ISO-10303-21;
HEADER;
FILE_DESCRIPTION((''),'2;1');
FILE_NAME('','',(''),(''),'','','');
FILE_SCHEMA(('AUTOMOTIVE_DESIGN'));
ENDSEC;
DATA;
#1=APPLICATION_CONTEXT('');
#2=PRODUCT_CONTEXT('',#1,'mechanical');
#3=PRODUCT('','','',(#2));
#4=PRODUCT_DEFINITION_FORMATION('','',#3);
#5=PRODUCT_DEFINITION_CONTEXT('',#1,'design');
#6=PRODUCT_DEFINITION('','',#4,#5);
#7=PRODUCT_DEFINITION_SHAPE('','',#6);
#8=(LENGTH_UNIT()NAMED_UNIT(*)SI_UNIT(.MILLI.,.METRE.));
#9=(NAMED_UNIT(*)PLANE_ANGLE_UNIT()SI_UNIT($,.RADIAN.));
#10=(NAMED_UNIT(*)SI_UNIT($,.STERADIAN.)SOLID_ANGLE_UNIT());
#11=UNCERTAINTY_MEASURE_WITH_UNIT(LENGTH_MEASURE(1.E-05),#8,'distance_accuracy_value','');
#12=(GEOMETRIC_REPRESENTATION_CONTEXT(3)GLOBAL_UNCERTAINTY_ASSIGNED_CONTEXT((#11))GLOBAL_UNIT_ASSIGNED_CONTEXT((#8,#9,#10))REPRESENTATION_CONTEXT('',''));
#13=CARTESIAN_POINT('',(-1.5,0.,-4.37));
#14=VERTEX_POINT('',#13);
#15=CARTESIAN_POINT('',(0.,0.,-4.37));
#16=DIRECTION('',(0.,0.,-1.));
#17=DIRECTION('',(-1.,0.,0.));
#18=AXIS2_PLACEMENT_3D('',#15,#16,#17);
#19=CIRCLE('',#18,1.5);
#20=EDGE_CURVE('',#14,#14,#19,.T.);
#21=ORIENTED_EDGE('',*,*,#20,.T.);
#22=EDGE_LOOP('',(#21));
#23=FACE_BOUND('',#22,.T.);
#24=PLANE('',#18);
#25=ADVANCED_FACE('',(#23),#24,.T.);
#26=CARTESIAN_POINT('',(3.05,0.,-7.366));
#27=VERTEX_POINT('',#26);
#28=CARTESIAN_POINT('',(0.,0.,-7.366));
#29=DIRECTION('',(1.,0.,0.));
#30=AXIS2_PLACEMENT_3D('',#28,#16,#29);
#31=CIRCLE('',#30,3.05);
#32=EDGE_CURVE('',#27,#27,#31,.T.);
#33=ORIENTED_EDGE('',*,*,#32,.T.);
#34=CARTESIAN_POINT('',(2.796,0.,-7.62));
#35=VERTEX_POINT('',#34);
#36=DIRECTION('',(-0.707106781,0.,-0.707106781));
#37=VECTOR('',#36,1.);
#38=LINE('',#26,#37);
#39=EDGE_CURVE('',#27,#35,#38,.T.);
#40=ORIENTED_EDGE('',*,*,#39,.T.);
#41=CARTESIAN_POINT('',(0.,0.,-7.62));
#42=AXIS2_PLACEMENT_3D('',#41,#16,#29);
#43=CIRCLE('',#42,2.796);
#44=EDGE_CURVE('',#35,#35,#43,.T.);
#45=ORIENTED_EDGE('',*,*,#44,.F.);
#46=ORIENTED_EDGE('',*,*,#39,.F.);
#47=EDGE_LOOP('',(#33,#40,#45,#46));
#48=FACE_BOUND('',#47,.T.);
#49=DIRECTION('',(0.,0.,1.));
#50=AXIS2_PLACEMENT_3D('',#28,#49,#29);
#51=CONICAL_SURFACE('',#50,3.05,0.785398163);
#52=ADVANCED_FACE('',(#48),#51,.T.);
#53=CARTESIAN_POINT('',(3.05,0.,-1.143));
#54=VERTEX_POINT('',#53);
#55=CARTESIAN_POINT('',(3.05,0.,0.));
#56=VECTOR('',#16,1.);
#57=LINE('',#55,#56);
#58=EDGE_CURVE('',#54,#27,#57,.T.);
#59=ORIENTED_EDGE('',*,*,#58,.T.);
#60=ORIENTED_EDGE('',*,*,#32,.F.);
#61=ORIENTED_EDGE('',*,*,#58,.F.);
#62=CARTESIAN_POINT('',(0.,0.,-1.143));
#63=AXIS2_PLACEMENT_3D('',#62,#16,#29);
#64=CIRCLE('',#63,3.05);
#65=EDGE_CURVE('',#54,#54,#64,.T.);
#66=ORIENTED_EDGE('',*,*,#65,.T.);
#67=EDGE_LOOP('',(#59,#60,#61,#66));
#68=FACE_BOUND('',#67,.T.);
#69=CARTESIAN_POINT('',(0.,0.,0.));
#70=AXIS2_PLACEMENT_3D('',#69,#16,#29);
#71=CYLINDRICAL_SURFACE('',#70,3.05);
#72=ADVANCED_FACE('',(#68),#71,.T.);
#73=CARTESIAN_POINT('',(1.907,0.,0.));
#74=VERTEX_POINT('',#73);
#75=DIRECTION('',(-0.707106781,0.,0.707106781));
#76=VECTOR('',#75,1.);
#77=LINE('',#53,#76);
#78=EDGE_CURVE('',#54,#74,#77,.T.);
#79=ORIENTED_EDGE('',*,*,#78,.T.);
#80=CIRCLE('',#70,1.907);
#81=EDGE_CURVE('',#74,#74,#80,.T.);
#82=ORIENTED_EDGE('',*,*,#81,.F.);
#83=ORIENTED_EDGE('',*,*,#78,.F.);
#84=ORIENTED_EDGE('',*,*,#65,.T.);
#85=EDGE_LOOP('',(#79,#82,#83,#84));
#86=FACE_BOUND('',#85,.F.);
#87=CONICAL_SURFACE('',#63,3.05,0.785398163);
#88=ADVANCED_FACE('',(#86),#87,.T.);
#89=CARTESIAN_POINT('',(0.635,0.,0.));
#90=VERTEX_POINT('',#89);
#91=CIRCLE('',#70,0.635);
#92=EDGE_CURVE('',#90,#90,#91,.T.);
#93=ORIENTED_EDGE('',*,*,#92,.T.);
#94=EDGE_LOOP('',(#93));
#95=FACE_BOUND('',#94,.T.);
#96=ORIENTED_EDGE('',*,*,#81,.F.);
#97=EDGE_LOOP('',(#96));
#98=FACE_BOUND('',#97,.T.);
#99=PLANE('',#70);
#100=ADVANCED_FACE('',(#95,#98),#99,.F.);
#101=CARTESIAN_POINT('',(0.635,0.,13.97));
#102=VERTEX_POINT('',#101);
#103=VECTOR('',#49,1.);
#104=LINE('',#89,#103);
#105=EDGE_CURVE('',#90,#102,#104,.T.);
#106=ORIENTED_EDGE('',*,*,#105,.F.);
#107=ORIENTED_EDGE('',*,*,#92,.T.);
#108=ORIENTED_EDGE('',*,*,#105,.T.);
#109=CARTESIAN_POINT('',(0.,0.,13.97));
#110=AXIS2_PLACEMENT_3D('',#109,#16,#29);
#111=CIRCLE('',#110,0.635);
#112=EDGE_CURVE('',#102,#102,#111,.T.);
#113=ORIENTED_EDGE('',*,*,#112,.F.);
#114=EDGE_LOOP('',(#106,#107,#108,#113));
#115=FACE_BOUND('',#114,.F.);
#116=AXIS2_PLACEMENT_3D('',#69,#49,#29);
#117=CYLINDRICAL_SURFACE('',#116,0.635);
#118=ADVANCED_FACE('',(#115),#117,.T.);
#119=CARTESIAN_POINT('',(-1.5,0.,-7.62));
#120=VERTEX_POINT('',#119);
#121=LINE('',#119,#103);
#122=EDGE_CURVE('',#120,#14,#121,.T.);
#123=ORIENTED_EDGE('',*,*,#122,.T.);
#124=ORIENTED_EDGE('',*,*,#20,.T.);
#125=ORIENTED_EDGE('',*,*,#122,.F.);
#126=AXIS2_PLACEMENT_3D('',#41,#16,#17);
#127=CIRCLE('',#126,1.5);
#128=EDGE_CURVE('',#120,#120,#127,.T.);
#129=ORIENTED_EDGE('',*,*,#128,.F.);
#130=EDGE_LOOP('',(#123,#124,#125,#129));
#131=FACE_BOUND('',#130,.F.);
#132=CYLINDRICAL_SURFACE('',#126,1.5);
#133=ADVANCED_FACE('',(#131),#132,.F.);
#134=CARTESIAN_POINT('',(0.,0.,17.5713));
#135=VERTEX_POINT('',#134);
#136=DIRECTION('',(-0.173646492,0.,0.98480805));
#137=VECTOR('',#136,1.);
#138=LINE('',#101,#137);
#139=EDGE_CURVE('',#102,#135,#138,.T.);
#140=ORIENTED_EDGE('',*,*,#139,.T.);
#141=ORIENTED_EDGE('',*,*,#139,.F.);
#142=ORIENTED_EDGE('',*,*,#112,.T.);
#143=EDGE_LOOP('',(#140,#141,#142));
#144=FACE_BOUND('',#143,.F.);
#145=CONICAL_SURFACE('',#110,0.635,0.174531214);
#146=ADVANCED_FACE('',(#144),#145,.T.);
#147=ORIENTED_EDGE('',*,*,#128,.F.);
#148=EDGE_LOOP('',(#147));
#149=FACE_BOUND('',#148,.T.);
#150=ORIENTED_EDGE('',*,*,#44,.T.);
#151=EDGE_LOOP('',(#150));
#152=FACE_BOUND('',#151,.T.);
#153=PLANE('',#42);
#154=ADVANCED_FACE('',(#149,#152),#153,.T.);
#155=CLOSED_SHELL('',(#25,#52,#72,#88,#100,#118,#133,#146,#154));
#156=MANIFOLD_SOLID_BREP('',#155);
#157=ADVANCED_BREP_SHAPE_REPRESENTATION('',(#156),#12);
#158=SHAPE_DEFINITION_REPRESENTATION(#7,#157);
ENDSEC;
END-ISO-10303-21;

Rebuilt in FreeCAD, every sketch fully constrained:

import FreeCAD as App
import Part
import Sketcher
from FreeCAD import Vector
Q = App.Units.Quantity


def edges_at(feature, points):
    """Names of the edges that pass closest to the given points."""
    edges = feature.Shape.Edges
    near = lambda p: min(range(len(edges)), key=lambda i: edges[i].distToShape(Part.Vertex(*p))[0])
    return sorted({f"Edge{near(p) + 1}" for p in points})


def add_polygon(sketch, points):
    """Adds a closed chain of lines whose ends are joined by coincident constraints."""
    first, n = sketch.GeometryCount, len(points)
    for a, b in zip(points, points[1:] + points[:1]):
        sketch.addGeometry(Part.LineSegment(App.Vector(*a, 0), App.Vector(*b, 0)), False)
    for i in range(n):
        sketch.addConstraint(Sketcher.Constraint("Coincident", first + i, 2, first + (i + 1) % n, 1))

doc = App.newDocument("Part")
body = doc.addObject("PartDesign::Body", "Body")

# Sketch on XZ plane
sketch1 = body.newObject("Sketcher::SketchObject", "Sketch")
sketch1.AttachmentSupport = (doc.getObject("XZ_Plane"), [""])
sketch1.MapMode = "FlatFace"
add_polygon(sketch1, [(0, -7.6), (0, 17.6), (0.6, 14), (0.6, 0), (3, 0), (3, -7.6)])  # lines 0-5
sketch1.addConstraint([
    Sketcher.Constraint("Vertical", 0),
    Sketcher.Constraint("Vertical", 2),
    Sketcher.Constraint("Horizontal", 3),
    Sketcher.Constraint("Vertical", 4),
    Sketcher.Constraint("Horizontal", 5),
    Sketcher.Constraint("PointOnObject", 0, 2, -2),
    Sketcher.Constraint("PointOnObject", 2, 2, -1),
    Sketcher.Constraint("DistanceY", 4, 2, 4, 1, Q("0.3 in")),
    Sketcher.Constraint("Angle", 1, Q("-80 deg")),
    Sketcher.Constraint("DistanceY", 2, 2, 2, 1, Q("0.55 in")),
    Sketcher.Constraint("DistanceX", -1, 1, 1, 2, Q("0.025 in")),
    Sketcher.Constraint("DistanceX", 5, 2, 5, 1, 3.05),
])
revolution = body.newObject("PartDesign::Revolution", "Revolution")
revolution.Profile = sketch1
revolution.ReferenceAxis = (sketch1, ["V_Axis"])
revolution.Angle = 360

# Sketch on XY plane
sketch2 = body.newObject("Sketcher::SketchObject", "Sketch001")
sketch2.AttachmentSupport = (doc.getObject("XY_Plane"), [""])
sketch2.MapMode = "FlatFace"
sketch2.AttachmentOffset = App.Placement(Vector(0, 0, -0.3 * 25.4), App.Rotation())
sketch2.addGeometry(Part.Circle(Vector(0, 0, 0), Vector(0, 0, 1), 1.5), False)
sketch2.addConstraint([
    Sketcher.Constraint("Coincident", 0, 3, -1, 1),
    Sketcher.Constraint("Diameter", 0, Q("0.1181 in")),
])
pocket1 = body.newObject("PartDesign::Pocket", "Pocket")
pocket1.Profile = sketch2
pocket1.Length = 3.25
pocket1.Reversed = True
doc.recompute()

chamfer = body.newObject("PartDesign::Chamfer", "Chamfer")
chamfer.Base = (pocket1, edges_at(pocket1, [(-3.05, 0, 0)]))
chamfer.Size = Q("0.045 in")
doc.recompute()

chamfer2 = body.newObject("PartDesign::Chamfer", "Chamfer001")
chamfer2.Base = (chamfer, edges_at(chamfer, [(-3.05, 0, -7.62)]))
chamfer2.Size = Q("0.01 in")

doc.recompute()
